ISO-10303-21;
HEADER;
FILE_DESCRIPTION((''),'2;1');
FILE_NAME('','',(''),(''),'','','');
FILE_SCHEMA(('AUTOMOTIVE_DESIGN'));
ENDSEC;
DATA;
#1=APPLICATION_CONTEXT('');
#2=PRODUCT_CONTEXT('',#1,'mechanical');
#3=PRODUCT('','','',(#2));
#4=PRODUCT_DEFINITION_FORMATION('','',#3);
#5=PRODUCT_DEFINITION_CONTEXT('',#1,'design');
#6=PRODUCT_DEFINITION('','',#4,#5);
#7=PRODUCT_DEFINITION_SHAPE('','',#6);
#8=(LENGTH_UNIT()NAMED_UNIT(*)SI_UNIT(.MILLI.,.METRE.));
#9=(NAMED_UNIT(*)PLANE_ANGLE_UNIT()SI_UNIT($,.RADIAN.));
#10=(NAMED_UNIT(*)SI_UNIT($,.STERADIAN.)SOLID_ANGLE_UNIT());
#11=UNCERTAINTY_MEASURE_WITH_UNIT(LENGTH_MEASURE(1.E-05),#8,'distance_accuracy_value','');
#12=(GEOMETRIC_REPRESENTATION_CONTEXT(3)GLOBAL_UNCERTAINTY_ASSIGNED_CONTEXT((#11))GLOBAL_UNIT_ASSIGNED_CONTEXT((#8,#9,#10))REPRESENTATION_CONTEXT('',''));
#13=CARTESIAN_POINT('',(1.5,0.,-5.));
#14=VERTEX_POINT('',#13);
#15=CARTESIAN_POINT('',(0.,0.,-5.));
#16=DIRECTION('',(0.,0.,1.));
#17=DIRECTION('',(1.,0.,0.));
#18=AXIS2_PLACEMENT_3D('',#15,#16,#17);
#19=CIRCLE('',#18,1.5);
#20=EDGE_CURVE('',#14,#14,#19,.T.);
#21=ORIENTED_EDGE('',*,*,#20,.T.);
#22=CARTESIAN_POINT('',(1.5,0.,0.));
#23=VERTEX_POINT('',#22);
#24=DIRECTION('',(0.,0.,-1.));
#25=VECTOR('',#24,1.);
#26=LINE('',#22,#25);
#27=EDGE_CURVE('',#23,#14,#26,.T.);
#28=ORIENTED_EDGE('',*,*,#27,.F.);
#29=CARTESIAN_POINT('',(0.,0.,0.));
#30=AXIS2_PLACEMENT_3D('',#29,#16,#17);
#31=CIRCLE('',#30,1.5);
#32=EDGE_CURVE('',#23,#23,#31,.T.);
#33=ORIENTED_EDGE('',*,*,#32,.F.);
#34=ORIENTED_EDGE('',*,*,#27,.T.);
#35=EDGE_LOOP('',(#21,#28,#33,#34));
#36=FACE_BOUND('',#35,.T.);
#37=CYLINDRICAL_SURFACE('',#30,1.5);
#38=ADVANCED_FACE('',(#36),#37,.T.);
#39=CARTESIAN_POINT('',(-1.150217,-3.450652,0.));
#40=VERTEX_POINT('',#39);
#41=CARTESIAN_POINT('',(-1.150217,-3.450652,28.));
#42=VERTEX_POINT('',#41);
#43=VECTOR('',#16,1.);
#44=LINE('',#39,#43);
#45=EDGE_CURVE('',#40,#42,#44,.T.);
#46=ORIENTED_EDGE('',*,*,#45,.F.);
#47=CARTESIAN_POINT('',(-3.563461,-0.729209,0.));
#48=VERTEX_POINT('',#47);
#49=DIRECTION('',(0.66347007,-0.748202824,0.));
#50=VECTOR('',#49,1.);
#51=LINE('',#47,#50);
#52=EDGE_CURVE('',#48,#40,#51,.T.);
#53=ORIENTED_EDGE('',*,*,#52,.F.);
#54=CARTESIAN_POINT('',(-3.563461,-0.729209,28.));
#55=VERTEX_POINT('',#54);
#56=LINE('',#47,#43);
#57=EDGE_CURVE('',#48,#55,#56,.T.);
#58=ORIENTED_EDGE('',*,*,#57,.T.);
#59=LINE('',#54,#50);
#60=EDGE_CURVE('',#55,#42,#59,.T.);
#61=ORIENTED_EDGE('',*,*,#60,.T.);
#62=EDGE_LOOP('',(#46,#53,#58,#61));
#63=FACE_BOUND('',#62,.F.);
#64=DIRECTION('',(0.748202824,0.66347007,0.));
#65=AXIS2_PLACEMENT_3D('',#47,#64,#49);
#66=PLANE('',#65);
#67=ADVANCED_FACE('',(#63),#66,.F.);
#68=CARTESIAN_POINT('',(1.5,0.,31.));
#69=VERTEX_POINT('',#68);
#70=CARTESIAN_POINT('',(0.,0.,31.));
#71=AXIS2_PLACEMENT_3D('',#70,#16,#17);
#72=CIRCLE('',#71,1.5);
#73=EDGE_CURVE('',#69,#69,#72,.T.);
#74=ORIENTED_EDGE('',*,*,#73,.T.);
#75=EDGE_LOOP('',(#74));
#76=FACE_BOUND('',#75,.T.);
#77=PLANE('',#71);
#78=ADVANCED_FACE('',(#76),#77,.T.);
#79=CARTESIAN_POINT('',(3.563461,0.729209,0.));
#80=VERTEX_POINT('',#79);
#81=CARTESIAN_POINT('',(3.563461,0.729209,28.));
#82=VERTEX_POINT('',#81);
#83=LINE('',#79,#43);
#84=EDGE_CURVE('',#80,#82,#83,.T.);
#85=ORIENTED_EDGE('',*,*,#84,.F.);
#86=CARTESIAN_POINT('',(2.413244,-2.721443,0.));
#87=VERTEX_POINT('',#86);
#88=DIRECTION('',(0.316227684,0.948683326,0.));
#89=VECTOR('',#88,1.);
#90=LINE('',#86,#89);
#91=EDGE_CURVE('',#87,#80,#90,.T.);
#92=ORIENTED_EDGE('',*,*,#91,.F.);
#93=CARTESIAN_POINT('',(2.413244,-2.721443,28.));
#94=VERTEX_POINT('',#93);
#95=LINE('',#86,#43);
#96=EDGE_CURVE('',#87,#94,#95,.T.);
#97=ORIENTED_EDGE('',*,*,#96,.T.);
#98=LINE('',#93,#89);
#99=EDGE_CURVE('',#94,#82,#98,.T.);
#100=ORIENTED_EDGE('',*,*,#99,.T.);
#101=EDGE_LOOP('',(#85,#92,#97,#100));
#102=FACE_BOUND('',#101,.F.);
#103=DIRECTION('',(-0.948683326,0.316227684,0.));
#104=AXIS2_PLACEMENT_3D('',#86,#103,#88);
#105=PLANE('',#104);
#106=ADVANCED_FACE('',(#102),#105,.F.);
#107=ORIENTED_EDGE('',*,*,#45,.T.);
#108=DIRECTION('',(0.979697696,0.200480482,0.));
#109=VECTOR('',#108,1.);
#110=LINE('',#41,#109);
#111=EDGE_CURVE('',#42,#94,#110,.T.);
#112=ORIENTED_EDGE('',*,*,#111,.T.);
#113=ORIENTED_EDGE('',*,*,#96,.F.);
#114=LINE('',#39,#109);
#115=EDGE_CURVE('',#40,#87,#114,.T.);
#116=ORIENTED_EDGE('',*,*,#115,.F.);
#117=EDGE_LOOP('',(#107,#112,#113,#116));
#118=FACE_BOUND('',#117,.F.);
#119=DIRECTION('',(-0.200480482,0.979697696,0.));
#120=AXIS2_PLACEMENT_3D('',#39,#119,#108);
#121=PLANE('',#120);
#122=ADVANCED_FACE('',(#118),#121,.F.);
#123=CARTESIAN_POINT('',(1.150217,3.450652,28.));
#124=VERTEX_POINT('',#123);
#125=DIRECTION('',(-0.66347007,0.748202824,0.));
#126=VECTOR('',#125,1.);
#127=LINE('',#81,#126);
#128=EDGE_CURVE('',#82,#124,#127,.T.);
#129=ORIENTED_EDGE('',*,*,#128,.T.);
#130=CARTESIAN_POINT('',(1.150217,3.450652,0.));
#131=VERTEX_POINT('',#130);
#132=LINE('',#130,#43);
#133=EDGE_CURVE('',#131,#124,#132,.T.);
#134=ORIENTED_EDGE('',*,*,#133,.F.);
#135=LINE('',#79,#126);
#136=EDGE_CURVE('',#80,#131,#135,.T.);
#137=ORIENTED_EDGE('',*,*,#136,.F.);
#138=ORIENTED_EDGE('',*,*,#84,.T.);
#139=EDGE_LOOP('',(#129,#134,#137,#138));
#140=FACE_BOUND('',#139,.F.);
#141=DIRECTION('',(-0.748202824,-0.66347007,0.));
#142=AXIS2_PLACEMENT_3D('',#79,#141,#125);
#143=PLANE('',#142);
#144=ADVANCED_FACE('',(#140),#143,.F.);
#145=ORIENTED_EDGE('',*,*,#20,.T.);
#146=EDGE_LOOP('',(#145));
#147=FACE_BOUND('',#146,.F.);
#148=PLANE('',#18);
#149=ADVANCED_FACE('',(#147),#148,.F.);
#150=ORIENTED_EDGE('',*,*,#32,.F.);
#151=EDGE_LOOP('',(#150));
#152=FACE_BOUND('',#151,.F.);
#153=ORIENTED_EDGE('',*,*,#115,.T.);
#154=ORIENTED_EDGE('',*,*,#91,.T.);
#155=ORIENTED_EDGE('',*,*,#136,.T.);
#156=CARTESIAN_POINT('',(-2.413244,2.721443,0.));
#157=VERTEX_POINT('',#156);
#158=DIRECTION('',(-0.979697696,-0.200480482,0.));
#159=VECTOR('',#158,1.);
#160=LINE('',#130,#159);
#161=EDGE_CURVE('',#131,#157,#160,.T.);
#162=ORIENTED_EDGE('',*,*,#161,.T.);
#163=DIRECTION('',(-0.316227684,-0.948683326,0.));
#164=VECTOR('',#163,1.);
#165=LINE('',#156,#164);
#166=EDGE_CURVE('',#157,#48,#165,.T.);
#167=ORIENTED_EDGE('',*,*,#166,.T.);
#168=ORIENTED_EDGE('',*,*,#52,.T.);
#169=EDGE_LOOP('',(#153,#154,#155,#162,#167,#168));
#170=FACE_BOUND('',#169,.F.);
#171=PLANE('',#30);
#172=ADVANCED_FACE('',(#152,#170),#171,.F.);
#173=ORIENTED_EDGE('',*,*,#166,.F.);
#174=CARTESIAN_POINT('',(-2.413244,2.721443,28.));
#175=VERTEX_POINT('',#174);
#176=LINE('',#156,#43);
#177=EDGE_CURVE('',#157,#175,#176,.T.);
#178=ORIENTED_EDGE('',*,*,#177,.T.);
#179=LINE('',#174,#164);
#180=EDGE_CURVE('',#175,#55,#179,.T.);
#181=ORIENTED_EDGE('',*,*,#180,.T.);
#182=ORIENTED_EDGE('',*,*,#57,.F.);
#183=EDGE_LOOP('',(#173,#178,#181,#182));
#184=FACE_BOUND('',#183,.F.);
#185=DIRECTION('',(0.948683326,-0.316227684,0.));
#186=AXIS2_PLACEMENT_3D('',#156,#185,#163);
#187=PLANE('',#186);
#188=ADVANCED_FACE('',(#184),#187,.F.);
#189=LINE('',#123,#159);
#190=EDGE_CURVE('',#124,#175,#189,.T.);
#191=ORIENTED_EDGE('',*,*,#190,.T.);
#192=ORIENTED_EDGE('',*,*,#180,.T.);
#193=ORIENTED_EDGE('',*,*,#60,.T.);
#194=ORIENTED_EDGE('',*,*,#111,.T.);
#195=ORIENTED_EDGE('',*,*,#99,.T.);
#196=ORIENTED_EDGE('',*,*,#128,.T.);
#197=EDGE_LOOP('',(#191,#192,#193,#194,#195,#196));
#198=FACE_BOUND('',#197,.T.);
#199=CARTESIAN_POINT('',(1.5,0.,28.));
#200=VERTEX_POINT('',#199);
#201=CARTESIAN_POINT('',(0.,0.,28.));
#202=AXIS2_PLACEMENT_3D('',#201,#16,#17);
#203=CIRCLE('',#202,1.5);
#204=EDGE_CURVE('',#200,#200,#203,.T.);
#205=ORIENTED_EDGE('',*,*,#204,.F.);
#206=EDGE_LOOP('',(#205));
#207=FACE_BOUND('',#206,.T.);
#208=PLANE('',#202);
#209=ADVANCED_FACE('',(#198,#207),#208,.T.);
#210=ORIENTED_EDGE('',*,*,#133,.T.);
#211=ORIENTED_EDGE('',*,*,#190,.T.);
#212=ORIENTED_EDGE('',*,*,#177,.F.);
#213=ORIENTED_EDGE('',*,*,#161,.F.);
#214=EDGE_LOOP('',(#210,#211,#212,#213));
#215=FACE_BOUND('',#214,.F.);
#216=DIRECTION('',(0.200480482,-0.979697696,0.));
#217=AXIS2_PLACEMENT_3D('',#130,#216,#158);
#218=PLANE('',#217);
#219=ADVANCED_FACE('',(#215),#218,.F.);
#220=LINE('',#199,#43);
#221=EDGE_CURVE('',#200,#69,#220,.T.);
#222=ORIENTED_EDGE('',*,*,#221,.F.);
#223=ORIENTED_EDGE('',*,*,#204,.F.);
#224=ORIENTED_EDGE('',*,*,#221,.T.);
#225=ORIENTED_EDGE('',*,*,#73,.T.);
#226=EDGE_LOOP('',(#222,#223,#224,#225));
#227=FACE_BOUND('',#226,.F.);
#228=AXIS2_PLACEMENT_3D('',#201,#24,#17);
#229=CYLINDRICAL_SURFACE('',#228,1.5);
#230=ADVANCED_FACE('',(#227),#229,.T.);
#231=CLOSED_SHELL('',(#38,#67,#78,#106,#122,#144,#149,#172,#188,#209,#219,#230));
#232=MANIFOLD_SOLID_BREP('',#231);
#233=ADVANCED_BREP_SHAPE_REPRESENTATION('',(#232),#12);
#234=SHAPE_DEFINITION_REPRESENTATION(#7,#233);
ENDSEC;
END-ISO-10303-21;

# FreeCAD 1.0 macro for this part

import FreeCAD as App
import Part
import Sketcher

V = App.Vector

doc = App.newDocument("Part")
body = doc.addObject("PartDesign::Body", "Body")

sketch1 = body.newObject("Sketcher::SketchObject", "Sketch")
sketch1.AttachmentSupport = (doc.getObject("XY_Plane"), [""])
sketch1.MapMode = "FlatFace"
sketch1.addGeometry([
    Part.LineSegment(V(2.413244, -2.721443, 0), V(3.563461, 0.729209, 0)),
    Part.LineSegment(V(3.563461, 0.729209, 0), V(1.150217, 3.450652, 0)),
    Part.LineSegment(V(1.150217, 3.450652, 0), V(-2.413244, 2.721443, 0)),
    Part.LineSegment(V(-2.413244, 2.721443, 0), V(-3.563461, -0.729209, 0)),
    Part.LineSegment(V(-3.563461, -0.729209, 0), V(-1.150217, -3.450652, 0)),
    Part.LineSegment(V(-1.150217, -3.450652, 0), V(2.413244, -2.721443, 0)),
], False)
sketch1.addConstraint([
    Sketcher.Constraint("Coincident", 0, 2, 1, 1),
    Sketcher.Constraint("Coincident", 1, 2, 2, 1),
    Sketcher.Constraint("Coincident", 2, 2, 3, 1),
    Sketcher.Constraint("Coincident", 3, 2, 4, 1),
    Sketcher.Constraint("Coincident", 4, 2, 5, 1),
    Sketcher.Constraint("Coincident", 5, 2, 0, 1),
    Sketcher.Constraint("Symmetric", 0, 2, 3, 2, -1, 1),
    Sketcher.Constraint("Symmetric", 1, 2, 4, 2, -1, 1),
    Sketcher.Constraint("Symmetric", 2, 2, 5, 2, -1, 1),
    Sketcher.Constraint("Equal", 0, 1),
    Sketcher.Constraint("Equal", 1, 2),
    Sketcher.Constraint("DistanceX", -1, 1, 0, 2, 3.563461),
    Sketcher.Constraint("DistanceY", -1, 1, 0, 2, 0.729209),
    Sketcher.Constraint("DistanceY", -1, 1, 1, 2, 3.450652),
    Sketcher.Constraint("DistanceX", 2, 2, 1, 2, 3.563461),
])
pad1 = body.newObject("PartDesign::Pad", "Pad")
pad1.Profile = sketch1
pad1.Length = 28

sketch2 = body.newObject("Sketcher::SketchObject", "Sketch001")
sketch2.AttachmentSupport = (doc.getObject("XY_Plane"), [""])
sketch2.MapMode = "FlatFace"
sketch2.addGeometry(Part.Circle(V(0, 0, 0), V(0, 0, 1), 1.5), False)
sketch2.addConstraint([
    Sketcher.Constraint("Coincident", 0, 3, -1, 1),
    Sketcher.Constraint("Diameter", 0, 3.0),
])
pad2 = body.newObject("PartDesign::Pad", "Pad001")
pad2.Profile = sketch2
pad2.Length = 5
pad2.Reversed = True

sketch3 = body.newObject("Sketcher::SketchObject", "Sketch002")
sketch3.AttachmentSupport = (doc.getObject("XY_Plane"), [""])
sketch3.MapMode = "FlatFace"
sketch3.AttachmentOffset = App.Placement(V(0, 0, 28), App.Rotation())
sketch3.addGeometry(Part.Circle(V(0, 0, 0), V(0, 0, 1), 1.5), False)
sketch3.addConstraint([
    Sketcher.Constraint("Coincident", 0, 3, -1, 1),
    Sketcher.Constraint("Diameter", 0, 3.0),
])
pad3 = body.newObject("PartDesign::Pad", "Pad002")
pad3.Profile = sketch3
pad3.Length = 3

doc.recompute()
